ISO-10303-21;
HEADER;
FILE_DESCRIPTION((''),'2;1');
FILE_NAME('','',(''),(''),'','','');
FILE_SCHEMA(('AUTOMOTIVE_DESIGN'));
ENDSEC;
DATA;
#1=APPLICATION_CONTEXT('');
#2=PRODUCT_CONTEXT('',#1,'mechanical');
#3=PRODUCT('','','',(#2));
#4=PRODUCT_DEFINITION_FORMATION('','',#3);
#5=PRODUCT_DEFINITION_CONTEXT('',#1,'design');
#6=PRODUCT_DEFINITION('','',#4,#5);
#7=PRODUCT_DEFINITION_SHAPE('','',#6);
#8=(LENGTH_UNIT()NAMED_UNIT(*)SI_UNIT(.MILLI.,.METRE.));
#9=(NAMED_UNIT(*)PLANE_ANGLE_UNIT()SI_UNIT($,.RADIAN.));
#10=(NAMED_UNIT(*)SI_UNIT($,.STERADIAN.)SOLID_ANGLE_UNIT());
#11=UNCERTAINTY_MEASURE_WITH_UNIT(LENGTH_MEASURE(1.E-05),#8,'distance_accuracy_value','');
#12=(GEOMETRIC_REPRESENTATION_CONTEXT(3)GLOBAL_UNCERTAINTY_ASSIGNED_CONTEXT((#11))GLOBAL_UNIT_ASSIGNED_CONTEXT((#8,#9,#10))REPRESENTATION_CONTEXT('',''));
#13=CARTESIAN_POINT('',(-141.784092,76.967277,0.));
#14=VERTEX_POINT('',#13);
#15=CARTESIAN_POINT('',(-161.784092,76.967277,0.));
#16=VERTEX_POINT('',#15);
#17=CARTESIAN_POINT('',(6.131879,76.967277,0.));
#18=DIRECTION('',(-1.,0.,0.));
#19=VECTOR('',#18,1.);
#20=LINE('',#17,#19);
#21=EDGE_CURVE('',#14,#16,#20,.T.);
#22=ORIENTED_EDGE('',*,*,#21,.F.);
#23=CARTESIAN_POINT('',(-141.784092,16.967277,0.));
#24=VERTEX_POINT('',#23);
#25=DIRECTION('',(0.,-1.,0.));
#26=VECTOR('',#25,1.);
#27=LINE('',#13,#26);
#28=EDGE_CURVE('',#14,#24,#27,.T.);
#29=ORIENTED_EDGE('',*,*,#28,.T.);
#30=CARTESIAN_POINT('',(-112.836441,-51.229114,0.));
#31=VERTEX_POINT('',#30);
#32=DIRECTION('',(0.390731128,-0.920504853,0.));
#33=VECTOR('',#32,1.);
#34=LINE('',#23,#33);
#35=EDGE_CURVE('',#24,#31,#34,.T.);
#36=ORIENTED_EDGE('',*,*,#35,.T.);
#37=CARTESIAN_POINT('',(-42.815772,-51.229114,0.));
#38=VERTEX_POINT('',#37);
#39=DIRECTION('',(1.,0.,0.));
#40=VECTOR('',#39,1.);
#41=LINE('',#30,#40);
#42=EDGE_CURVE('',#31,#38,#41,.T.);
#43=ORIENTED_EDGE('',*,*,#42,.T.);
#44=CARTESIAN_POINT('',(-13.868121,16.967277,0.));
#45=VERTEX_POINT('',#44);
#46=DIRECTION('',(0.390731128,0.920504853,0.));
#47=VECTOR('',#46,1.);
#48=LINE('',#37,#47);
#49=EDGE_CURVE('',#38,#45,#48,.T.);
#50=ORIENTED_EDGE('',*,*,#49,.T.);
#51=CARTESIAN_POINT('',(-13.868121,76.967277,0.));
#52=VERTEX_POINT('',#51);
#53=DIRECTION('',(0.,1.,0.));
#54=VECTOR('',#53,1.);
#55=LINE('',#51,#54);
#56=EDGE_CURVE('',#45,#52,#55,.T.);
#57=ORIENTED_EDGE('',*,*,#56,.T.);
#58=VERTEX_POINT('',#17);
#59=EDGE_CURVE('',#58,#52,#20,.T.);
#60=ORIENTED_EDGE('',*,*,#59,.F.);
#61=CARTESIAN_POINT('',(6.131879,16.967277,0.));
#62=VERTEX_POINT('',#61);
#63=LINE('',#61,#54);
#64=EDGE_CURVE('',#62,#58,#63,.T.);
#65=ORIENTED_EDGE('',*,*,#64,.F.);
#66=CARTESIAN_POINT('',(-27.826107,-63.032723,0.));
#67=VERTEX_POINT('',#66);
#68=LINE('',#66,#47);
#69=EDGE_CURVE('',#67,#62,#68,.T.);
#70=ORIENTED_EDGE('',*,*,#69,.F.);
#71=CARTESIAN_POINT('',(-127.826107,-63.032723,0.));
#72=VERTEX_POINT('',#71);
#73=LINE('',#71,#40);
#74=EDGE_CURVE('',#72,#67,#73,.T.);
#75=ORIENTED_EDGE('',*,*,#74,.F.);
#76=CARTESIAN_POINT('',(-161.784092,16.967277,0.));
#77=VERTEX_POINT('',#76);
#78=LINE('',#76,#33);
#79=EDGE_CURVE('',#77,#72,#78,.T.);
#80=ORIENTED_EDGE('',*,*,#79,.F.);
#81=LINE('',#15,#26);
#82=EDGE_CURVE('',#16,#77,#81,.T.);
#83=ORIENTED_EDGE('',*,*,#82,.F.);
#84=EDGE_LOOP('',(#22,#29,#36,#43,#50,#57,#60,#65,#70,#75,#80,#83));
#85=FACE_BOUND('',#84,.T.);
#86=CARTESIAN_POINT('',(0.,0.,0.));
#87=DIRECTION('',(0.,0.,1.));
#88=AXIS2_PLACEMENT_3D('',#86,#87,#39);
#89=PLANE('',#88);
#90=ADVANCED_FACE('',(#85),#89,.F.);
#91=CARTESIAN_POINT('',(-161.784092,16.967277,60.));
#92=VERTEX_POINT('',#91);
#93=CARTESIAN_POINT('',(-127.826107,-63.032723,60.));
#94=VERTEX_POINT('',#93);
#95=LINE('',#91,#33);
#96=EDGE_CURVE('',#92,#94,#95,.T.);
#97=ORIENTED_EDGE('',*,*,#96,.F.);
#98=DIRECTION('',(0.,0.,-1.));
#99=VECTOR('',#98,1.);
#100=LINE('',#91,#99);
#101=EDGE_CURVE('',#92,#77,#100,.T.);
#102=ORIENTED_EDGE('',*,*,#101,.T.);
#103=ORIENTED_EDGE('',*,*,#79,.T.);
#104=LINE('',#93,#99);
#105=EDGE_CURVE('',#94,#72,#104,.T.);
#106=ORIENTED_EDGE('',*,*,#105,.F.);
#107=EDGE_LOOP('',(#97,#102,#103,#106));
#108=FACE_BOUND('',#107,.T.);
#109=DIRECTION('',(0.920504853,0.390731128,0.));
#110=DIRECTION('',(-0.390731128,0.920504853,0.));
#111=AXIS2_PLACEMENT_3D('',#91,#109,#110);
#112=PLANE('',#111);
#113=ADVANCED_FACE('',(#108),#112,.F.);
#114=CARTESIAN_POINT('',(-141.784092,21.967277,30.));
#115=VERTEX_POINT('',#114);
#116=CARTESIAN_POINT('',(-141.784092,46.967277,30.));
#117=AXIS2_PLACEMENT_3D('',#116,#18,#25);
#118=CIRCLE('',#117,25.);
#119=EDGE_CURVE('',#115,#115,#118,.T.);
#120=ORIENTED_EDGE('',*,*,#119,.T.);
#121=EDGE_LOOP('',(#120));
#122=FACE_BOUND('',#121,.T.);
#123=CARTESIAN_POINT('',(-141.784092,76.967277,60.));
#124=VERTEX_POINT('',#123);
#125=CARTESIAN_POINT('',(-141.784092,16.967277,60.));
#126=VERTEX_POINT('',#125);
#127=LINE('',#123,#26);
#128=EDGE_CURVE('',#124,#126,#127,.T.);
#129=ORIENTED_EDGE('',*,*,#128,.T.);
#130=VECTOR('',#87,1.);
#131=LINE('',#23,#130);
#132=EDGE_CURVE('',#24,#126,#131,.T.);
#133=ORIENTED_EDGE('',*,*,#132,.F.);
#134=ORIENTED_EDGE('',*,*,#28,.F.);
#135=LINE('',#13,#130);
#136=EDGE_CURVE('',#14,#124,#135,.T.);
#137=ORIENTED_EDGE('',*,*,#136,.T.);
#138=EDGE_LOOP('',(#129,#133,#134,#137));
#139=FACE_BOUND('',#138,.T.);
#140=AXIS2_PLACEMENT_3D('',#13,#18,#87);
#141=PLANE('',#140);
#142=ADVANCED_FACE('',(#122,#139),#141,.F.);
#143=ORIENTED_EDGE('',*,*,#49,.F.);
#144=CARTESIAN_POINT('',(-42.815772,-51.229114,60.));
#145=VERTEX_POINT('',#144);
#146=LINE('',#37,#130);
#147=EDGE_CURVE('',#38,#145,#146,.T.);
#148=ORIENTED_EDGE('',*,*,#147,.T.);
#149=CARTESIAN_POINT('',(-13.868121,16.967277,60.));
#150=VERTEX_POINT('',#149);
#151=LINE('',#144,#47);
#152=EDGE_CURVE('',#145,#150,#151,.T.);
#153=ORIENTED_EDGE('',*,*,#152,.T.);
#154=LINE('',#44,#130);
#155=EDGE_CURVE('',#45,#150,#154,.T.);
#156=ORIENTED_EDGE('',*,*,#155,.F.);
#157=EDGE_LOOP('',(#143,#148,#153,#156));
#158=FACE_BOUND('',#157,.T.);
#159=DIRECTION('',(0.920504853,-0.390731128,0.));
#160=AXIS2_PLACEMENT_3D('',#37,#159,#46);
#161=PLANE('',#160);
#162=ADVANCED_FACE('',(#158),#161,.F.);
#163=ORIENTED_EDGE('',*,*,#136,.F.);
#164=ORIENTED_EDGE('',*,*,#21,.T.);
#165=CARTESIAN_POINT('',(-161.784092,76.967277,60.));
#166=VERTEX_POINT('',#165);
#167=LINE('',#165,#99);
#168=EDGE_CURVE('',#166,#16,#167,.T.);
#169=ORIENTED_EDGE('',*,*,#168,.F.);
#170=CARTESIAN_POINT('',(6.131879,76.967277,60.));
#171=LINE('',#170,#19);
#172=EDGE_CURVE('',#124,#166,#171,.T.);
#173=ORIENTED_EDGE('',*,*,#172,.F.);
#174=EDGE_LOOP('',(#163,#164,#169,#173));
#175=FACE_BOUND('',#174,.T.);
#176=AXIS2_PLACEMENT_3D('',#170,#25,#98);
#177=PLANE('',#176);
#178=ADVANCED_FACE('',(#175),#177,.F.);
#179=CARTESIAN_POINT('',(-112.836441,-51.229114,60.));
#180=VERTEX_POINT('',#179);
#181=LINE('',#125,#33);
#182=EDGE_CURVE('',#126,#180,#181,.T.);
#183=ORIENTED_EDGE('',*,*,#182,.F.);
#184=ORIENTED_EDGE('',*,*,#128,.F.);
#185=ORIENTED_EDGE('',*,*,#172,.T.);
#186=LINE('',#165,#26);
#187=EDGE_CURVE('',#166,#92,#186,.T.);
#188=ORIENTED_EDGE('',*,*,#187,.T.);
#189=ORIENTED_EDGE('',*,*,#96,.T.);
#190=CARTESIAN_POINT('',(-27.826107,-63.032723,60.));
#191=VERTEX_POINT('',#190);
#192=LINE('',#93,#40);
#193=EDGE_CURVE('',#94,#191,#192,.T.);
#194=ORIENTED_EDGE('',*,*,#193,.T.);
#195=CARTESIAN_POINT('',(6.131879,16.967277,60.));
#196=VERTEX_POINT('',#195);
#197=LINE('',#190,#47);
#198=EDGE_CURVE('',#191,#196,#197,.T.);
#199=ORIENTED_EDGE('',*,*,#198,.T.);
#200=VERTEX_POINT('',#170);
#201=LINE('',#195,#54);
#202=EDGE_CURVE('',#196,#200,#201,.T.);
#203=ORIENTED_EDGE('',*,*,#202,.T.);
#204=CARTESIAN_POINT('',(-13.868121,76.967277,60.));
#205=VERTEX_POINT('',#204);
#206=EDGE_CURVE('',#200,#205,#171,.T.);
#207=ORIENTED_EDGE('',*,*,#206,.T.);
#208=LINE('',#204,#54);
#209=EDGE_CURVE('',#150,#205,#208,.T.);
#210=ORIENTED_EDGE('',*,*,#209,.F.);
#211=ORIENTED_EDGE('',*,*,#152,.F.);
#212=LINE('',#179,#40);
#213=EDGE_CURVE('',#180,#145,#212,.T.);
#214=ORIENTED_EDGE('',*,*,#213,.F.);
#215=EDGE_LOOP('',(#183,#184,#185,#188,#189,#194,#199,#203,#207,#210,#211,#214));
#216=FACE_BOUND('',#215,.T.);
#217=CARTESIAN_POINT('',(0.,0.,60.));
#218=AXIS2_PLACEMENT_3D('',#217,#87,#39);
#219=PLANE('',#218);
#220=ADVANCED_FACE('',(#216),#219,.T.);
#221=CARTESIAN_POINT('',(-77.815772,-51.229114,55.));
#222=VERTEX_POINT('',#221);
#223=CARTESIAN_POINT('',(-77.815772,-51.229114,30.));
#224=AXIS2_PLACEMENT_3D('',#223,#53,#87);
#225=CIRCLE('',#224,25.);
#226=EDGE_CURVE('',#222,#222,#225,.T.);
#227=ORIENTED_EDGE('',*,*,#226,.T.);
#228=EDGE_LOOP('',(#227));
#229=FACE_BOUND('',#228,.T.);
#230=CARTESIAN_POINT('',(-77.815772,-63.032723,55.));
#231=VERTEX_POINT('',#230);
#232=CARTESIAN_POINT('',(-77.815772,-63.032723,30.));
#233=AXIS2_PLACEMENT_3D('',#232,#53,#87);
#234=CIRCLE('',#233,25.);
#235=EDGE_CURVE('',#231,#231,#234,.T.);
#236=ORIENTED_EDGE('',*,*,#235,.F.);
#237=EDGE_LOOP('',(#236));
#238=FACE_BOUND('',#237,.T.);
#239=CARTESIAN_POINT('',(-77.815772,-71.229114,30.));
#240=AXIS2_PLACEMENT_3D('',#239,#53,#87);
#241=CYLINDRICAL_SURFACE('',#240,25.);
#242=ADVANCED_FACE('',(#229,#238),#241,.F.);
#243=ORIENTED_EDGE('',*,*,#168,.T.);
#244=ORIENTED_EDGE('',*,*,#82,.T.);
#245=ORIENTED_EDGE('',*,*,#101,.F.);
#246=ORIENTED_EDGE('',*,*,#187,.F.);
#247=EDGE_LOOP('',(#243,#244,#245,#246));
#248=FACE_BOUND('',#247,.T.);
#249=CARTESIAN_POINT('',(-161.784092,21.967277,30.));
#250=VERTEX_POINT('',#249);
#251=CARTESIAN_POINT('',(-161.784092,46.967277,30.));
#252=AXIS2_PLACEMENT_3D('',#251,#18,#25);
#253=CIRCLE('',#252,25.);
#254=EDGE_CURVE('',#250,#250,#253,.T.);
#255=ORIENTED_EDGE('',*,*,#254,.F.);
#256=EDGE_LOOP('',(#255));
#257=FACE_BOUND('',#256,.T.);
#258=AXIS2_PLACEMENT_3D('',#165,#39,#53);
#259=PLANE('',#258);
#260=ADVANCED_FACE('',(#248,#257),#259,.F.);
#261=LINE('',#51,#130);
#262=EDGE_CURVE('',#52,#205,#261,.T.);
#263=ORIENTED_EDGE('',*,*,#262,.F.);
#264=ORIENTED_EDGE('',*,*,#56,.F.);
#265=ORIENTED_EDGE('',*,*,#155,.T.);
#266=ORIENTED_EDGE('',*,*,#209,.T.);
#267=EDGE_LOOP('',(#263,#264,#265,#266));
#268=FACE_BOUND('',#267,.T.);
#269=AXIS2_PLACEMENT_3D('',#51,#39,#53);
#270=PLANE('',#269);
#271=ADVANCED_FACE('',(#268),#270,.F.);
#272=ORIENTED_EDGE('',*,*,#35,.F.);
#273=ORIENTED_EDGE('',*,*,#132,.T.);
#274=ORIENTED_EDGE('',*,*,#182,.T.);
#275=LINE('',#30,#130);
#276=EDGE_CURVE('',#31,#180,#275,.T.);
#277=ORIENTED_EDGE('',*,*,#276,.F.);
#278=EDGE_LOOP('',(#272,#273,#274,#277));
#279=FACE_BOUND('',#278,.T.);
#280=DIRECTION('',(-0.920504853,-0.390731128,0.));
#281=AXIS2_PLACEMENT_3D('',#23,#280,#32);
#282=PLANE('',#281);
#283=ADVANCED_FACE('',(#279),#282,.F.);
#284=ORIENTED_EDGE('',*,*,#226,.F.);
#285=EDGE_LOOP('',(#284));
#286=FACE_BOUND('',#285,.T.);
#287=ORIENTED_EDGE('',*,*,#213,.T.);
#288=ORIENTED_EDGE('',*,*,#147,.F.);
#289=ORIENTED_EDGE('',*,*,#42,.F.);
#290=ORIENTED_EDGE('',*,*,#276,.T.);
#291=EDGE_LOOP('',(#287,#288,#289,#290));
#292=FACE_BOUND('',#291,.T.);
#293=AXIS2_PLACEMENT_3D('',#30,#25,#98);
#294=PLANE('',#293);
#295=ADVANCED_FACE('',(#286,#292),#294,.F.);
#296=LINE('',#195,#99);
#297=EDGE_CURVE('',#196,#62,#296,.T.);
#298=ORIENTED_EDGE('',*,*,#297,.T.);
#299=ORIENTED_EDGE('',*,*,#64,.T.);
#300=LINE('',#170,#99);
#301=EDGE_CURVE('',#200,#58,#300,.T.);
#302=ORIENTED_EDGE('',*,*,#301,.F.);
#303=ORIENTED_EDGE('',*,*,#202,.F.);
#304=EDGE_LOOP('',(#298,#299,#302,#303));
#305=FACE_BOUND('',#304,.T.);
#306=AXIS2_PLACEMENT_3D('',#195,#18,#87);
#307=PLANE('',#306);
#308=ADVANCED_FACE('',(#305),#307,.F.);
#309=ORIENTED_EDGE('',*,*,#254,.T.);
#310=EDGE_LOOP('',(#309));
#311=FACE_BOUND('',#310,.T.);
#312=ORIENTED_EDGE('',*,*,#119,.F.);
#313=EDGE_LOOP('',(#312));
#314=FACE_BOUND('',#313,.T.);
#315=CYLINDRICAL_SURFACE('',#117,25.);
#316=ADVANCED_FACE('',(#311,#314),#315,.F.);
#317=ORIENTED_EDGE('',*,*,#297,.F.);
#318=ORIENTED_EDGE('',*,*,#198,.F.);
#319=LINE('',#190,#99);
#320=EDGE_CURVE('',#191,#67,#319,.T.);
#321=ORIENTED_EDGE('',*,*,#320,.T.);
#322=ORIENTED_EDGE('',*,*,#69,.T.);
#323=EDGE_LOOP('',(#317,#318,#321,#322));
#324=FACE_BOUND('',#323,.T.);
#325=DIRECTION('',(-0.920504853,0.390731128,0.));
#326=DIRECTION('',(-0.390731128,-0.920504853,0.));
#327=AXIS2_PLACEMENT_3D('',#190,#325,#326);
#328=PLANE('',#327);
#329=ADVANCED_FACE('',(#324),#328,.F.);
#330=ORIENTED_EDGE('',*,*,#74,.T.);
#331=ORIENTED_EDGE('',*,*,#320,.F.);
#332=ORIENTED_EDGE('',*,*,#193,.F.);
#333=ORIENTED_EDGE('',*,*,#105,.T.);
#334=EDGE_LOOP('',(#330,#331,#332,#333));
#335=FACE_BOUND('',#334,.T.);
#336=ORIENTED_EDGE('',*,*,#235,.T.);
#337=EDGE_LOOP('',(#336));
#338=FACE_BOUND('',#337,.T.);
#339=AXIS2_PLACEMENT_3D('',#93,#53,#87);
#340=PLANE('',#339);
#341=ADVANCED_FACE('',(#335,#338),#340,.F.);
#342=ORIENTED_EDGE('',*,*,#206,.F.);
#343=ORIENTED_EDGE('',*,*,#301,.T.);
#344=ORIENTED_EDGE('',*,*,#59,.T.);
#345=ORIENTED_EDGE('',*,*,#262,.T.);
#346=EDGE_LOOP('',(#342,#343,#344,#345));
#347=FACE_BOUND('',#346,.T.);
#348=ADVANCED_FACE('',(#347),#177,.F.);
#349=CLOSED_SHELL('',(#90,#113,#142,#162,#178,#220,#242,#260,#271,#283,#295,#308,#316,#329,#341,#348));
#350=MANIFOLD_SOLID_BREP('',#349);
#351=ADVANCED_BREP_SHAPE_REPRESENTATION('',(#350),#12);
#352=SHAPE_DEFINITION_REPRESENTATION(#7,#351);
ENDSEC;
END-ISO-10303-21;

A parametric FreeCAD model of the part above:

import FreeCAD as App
import Part
import Sketcher
from FreeCAD import Vector
Q = App.Units.Quantity

doc = App.newDocument("Part")
body = doc.addObject("PartDesign::Body", "Body")

# Sketch on XY plane
sketch1 = doc.addObject("Sketcher::SketchObject", "Sketch")
body.addObject(sketch1)
sketch1.AttachmentSupport = (doc.XY_Plane, [""])
sketch1.MapMode = "FlatFace"
sketch1.addGeometry([
    Part.LineSegment(Vector(-162, 77, 0), Vector(-162, 17, 0)),  # 0
    Part.LineSegment(Vector(-162, 17, 0), Vector(-128, -63, 0)),  # 1
    Part.LineSegment(Vector(-128, -63, 0), Vector(-28, -63, 0)),  # 2
    Part.LineSegment(Vector(-28, -63, 0), Vector(6, 17, 0)),  # 3
    Part.LineSegment(Vector(6, 17, 0), Vector(6, 77, 0)),  # 4
    Part.LineSegment(Vector(6, 77, 0), Vector(-162, 77, 0)),  # 5
], False)
sketch1.addConstraint([
    Sketcher.Constraint("Coincident", 0, 2, 1, 1),
    Sketcher.Constraint("Coincident", 1, 2, 2, 1),
    Sketcher.Constraint("Coincident", 2, 2, 3, 1),
    Sketcher.Constraint("Coincident", 3, 2, 4, 1),
    Sketcher.Constraint("Coincident", 4, 2, 5, 1),
    Sketcher.Constraint("Coincident", 5, 2, 0, 1),
    Sketcher.Constraint("Vertical", 0),
    Sketcher.Constraint("Horizontal", 2),
    Sketcher.Constraint("Vertical", 4),
    Sketcher.Constraint("Horizontal", 5),
    Sketcher.Constraint("Horizontal", 0, 2, 3, 2),
    Sketcher.Constraint("Equal", 1, 3),
    Sketcher.Constraint("DistanceX", 2, 1, 2, 2, 100.0),
    Sketcher.Constraint("DistanceY", 0, 2, 0, 1, 60.0),
    Sketcher.Constraint("Angle", 1, Q("-67 deg")),
    Sketcher.Constraint("DistanceY", 1, 2, 0, 2, 80.0),
    Sketcher.Constraint("DistanceX", 0, 2, -1, 1, 161.784092),
    Sketcher.Constraint("DistanceY", -1, 1, 0, 2, 16.967277),
])
pad1 = doc.addObject("PartDesign::Pad", "Pad")
body.addObject(pad1)
pad1.Profile = sketch1
pad1.Length = 60

# Sketch on XY plane
sketch2 = doc.addObject("Sketcher::SketchObject", "Sketch001")
body.addObject(sketch2)
sketch2.AttachmentSupport = (doc.XY_Plane, [""])
sketch2.MapMode = "FlatFace"
sketch2.AttachmentOffset = App.Placement(Vector(0, 0, 60), App.Rotation())
sketch2.addGeometry([
    Part.LineSegment(Vector(-142, 77, 0), Vector(-142, 17, 0)),  # 0
    Part.LineSegment(Vector(-142, 17, 0), Vector(-113, -51, 0)),  # 1
    Part.LineSegment(Vector(-113, -51, 0), Vector(-43, -51, 0)),  # 2
    Part.LineSegment(Vector(-43, -51, 0), Vector(-14, 17, 0)),  # 3
    Part.LineSegment(Vector(-14, 17, 0), Vector(-14, 77, 0)),  # 4
    Part.LineSegment(Vector(-14, 77, 0), Vector(-142, 77, 0)),  # 5
], False)
sketch2.addConstraint([
    Sketcher.Constraint("Coincident", 0, 2, 1, 1),
    Sketcher.Constraint("Coincident", 1, 2, 2, 1),
    Sketcher.Constraint("Coincident", 2, 2, 3, 1),
    Sketcher.Constraint("Coincident", 3, 2, 4, 1),
    Sketcher.Constraint("Coincident", 4, 2, 5, 1),
    Sketcher.Constraint("Coincident", 5, 2, 0, 1),
    Sketcher.Constraint("Vertical", 0),
    Sketcher.Constraint("Horizontal", 2),
    Sketcher.Constraint("Vertical", 4),
    Sketcher.Constraint("Horizontal", 5),
    Sketcher.Constraint("Horizontal", 0, 2, 3, 2),
    Sketcher.Constraint("Equal", 1, 3),
    Sketcher.Constraint("DistanceY", 0, 2, 0, 1, 60.0),
    Sketcher.Constraint("Angle", 1, Q("-67 deg")),
    Sketcher.Constraint("DistanceX", 2, 1, 2, 2, 70.020669),
    Sketcher.Constraint("DistanceX", 5, 2, 5, 1, 127.915971),
    Sketcher.Constraint("DistanceX", 0, 2, -1, 1, 141.784092),
    Sketcher.Constraint("DistanceY", -1, 1, 0, 2, 16.967277),
])
pocket1 = doc.addObject("PartDesign::Pocket", "Pocket")
body.addObject(pocket1)
pocket1.Profile = sketch2
pocket1.Type = "ThroughAll"

# Sketch on YZ plane
sketch3 = doc.addObject("Sketcher::SketchObject", "Sketch002")
body.addObject(sketch3)
sketch3.AttachmentSupport = (doc.YZ_Plane, [""])
sketch3.MapMode = "FlatFace"
sketch3.AttachmentOffset = App.Placement(Vector(0, 0, -161.784092), App.Rotation())
sketch3.addGeometry(Part.Circle(Vector(47, 30, 0), Vector(0, 0, 1), 25), False)
sketch3.addConstraint([
    Sketcher.Constraint("Diameter", 0, 50.0),
    Sketcher.Constraint("DistanceY", -1, 1, 0, 3, 30.0),
    Sketcher.Constraint("DistanceX", -1, 1, 0, 3, 46.967277),
])
pocket2 = doc.addObject("PartDesign::Pocket", "Pocket001")
body.addObject(pocket2)
pocket2.Profile = sketch3
pocket2.Length = 20
pocket2.Reversed = True

# Sketch on XZ plane
sketch4 = doc.addObject("Sketcher::SketchObject", "Sketch003")
body.addObject(sketch4)
sketch4.AttachmentSupport = (doc.XZ_Plane, [""])
sketch4.MapMode = "FlatFace"
sketch4.AttachmentOffset = App.Placement(Vector(0, 0, 51.229114), App.Rotation())
sketch4.addGeometry(Part.Circle(Vector(-78, 30, 0), Vector(0, 0, 1), 25), False)
sketch4.addConstraint([
    Sketcher.Constraint("Diameter", 0, 50.0),
    Sketcher.Constraint("DistanceY", -1, 1, 0, 3, 30.0),
    Sketcher.Constraint("DistanceX", 0, 3, -1, 1, 77.815772),
])
pocket3 = doc.addObject("PartDesign::Pocket", "Pocket002")
body.addObject(pocket3)
pocket3.Profile = sketch4
pocket3.Length = 20
pocket3.Reversed = True

doc.recompute()
